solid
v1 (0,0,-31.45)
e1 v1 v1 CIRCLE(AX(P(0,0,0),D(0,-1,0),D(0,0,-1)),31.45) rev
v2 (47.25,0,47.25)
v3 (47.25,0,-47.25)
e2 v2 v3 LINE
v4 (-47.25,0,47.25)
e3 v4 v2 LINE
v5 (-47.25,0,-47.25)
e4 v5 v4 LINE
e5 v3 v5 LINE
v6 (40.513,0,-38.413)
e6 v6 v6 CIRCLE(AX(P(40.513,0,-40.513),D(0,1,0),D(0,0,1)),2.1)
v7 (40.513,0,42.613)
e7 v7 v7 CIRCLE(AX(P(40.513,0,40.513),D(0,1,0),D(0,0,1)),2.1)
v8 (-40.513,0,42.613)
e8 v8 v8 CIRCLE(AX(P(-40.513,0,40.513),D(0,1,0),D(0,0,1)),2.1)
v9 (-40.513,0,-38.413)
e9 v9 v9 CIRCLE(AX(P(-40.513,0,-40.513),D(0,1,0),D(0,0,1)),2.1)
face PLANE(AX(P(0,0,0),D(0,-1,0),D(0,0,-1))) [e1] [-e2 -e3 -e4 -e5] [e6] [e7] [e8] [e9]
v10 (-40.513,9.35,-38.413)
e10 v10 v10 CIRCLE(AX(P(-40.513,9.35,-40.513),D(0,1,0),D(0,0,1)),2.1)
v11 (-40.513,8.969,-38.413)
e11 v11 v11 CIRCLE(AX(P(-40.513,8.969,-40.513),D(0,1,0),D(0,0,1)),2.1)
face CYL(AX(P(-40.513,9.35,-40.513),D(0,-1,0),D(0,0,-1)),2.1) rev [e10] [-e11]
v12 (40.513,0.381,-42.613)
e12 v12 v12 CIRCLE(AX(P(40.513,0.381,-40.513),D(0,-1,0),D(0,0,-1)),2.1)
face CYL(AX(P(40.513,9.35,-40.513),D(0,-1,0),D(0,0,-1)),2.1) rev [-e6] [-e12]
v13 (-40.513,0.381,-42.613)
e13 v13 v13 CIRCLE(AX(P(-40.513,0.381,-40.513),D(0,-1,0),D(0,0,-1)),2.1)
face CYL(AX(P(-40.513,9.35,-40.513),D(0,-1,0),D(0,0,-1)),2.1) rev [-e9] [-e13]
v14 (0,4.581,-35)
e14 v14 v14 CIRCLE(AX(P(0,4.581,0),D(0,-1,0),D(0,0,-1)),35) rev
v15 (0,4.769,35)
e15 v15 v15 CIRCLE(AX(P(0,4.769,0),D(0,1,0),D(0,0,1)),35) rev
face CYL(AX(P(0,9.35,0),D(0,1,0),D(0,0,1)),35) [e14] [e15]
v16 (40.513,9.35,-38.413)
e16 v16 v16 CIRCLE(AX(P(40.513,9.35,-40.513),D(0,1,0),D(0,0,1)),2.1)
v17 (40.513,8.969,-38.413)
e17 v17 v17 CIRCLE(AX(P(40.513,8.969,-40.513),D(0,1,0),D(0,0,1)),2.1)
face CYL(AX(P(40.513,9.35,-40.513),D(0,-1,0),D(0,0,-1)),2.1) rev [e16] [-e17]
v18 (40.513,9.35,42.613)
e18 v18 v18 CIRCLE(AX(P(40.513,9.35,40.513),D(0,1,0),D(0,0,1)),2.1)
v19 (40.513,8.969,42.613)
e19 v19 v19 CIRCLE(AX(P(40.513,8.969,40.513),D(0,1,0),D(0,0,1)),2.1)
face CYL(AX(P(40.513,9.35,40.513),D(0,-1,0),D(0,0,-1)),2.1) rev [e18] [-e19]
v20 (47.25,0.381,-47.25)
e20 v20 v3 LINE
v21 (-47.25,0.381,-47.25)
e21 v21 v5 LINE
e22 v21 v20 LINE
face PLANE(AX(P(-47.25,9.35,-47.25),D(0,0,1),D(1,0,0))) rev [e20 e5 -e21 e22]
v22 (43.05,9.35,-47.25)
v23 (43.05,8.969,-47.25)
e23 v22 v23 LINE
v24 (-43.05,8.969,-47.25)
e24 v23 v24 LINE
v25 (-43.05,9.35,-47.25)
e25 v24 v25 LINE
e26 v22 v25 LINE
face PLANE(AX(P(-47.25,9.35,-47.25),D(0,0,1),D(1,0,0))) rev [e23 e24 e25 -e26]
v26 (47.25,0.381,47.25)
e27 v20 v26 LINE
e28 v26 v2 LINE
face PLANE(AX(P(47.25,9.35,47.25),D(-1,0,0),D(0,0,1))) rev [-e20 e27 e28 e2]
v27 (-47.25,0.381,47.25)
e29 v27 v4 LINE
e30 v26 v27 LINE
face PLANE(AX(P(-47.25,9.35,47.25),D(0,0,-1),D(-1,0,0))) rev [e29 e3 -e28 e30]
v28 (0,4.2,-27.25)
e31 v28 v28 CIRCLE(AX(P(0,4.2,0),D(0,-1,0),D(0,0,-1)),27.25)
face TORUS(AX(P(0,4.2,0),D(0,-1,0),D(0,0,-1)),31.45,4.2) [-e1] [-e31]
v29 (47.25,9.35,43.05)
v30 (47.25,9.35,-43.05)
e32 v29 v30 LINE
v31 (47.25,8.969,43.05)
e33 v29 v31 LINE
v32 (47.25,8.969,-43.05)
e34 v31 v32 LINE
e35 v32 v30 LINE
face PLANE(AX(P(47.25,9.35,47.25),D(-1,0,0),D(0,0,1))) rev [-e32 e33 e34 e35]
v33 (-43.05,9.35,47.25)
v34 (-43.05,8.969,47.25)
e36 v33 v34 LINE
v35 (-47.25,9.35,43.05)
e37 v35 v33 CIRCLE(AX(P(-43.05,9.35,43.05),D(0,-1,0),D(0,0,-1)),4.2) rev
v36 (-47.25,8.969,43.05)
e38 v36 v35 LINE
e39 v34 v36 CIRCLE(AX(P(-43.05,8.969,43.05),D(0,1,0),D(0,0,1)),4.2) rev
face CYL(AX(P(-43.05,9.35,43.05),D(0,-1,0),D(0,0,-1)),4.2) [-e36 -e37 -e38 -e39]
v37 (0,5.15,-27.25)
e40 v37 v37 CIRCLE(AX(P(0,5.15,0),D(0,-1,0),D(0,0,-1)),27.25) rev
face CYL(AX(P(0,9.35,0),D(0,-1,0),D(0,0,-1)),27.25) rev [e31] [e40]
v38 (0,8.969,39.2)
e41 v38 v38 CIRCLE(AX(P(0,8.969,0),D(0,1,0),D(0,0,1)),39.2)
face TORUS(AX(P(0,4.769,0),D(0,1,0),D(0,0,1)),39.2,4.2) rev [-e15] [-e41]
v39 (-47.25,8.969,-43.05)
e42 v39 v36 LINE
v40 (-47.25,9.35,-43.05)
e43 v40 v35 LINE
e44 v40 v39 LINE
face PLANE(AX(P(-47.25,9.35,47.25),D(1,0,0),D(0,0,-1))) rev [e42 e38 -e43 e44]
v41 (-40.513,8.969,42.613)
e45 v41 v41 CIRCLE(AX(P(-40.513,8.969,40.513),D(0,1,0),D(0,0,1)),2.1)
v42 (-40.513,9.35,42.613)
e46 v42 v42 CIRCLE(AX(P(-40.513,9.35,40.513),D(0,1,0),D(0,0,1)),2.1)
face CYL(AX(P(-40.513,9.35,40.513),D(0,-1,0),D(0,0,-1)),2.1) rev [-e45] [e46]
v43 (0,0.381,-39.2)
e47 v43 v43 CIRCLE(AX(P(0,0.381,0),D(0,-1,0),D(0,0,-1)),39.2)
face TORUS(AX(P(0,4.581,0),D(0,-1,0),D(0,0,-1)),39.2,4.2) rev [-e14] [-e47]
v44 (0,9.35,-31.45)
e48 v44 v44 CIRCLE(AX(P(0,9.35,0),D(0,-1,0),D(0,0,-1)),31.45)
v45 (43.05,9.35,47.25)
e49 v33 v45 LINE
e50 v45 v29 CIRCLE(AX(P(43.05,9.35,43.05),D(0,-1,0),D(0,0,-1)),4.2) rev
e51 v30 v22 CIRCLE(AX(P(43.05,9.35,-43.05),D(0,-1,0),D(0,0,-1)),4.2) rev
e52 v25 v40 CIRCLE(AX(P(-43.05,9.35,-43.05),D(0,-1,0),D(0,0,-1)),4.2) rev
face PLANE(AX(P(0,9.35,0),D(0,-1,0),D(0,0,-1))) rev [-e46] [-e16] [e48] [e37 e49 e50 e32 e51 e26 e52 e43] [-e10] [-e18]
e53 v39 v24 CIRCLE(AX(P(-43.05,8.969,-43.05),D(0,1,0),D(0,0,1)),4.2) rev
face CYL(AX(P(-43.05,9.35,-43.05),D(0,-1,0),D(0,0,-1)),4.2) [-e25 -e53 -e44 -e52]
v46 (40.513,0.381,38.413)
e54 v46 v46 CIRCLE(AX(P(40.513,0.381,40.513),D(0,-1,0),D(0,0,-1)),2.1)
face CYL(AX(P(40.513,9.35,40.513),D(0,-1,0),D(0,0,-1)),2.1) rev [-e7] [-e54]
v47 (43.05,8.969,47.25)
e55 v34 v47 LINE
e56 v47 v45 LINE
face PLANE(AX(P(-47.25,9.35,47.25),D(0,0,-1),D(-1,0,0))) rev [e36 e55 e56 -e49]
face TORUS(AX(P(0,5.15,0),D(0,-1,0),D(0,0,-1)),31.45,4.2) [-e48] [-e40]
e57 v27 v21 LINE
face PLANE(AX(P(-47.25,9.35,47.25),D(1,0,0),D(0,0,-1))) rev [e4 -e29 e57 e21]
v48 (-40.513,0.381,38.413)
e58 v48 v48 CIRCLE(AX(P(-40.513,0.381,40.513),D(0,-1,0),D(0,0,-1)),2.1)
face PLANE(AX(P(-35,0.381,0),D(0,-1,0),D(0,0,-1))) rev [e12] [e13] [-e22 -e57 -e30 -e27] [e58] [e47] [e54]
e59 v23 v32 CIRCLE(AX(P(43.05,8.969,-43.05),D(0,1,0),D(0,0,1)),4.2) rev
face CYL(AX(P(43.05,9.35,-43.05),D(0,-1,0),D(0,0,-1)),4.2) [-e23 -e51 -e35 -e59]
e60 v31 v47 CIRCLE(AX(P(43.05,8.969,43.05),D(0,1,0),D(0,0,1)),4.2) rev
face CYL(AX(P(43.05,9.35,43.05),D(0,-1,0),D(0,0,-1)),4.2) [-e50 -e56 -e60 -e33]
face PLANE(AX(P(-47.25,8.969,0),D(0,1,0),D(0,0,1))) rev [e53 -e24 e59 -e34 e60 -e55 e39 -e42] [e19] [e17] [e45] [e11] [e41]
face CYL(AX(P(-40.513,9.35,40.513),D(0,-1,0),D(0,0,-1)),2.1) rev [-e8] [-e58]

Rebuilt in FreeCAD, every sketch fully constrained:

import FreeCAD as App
import Part
import Sketcher
from FreeCAD import Vector
Q = App.Units.Quantity


def edges_at(feature, points):
    """Names of the edges that pass closest to the given points."""
    edges = feature.Shape.Edges
    near = lambda p: min(range(len(edges)), key=lambda i: edges[i].distToShape(Part.Vertex(*p))[0])
    return sorted({f"Edge{near(p) + 1}" for p in points})

doc = App.newDocument("Part")
params = doc.addObject("Spreadsheet::Sheet", "Params")
for row, (alias, value) in enumerate([
    ("sketch1_diameter", "4.2 mm"),
    ("sketch1_diameter2", "54.5 mm"),
    ("sketch1_width", "94.5 mm"),
    ("pad1_length", "9.35 mm"),
    ("groove_angle", "360 deg"),
    ("fillet_radius", "4.2 mm"),
], start=1):
    params.set(f"A{row}", alias)
    params.set(f"B{row}", "=" + value)
    params.setAlias(f"B{row}", alias)

body = doc.addObject("PartDesign::Body", "Body")

sketch1 = body.newObject("Sketcher::SketchObject", "Sketch")
sketch1.AttachmentSupport = (doc.getObject("XZ_Plane"), [""])
sketch1.MapMode = "FlatFace"
sketch1.addGeometry([
    Part.LineSegment(Vector(-47.25, -47.25, 0), Vector(-47.25, 47.25, 0)),
    Part.LineSegment(Vector(-47.25, 47.25, 0), Vector(47.25, 47.25, 0)),
    Part.LineSegment(Vector(47.25, 47.25, 0), Vector(47.25, -47.25, 0)),
    Part.LineSegment(Vector(47.25, -47.25, 0), Vector(-47.25, -47.25, 0)),
    Part.Circle(Vector(-40.513, 40.513, 0), Vector(0, 0, 1), 2.1),
    Part.Circle(Vector(40.513, 40.513, 0), Vector(0, 0, 1), 2.1),
    Part.Circle(Vector(-40.513, -40.513, 0), Vector(0, 0, 1), 2.1),
    Part.Circle(Vector(0, 0, 0), Vector(0, 0, 1), 27.25),
    Part.Circle(Vector(40.513, -40.513, 0), Vector(0, 0, 1), 2.1),
], False)
sketch1.addConstraint([
    Sketcher.Constraint("Coincident", 0, 2, 1, 1),
    Sketcher.Constraint("Coincident", 1, 2, 2, 1),
    Sketcher.Constraint("Coincident", 2, 2, 3, 1),
    Sketcher.Constraint("Coincident", 3, 2, 0, 1),
    Sketcher.Constraint("Vertical", 0),
    Sketcher.Constraint("Horizontal", 1),
    Sketcher.Constraint("Vertical", 2),
    Sketcher.Constraint("Horizontal", 3),
    Sketcher.Constraint("Coincident", 7, 3, -1, 1),
    Sketcher.Constraint("Equal", 4, 5),
    Sketcher.Constraint("Equal", 5, 6),
    Sketcher.Constraint("Equal", 6, 8),
    Sketcher.Constraint("Symmetric", 5, 3, 6, 3, -1, 1),
    Sketcher.Constraint("Symmetric", 4, 3, 8, 3, -1, 1),
    Sketcher.Constraint("Symmetric", 0, 2, 2, 2, -1, 1),
    Sketcher.Constraint("Symmetric", 4, 3, 5, 3, -2),
    Sketcher.Constraint("Equal", 3, 0),
    Sketcher.Constraint("Diameter", 4, Q("4.2 mm")),
    Sketcher.Constraint("Diameter", 7, Q("54.5 mm")),
    Sketcher.Constraint("DistanceX", 1, 1, 1, 2, Q("94.5 mm")),
    Sketcher.Constraint("DistanceX", 4, 3, -1, 1, Q("40.513 mm")),
    Sketcher.Constraint("DistanceY", -1, 1, 4, 3, Q("40.513 mm")),
])
sketch1.setExpression("Constraints[17]", "Params.sketch1_diameter")
sketch1.setExpression("Constraints[18]", "Params.sketch1_diameter2")
sketch1.setExpression("Constraints[19]", "Params.sketch1_width")
pad1 = body.newObject("PartDesign::Pad", "Pad")
pad1.Profile = sketch1
pad1.setExpression("Length", "Params.pad1_length")
pad1.Reversed = True

sketch2 = body.newObject("Sketcher::SketchObject", "Sketch001")
sketch2.AttachmentSupport = (doc.getObject("XY_Plane"), [""])
sketch2.MapMode = "FlatFace"
sketch2.addGeometry([
    Part.LineSegment(Vector(-35, 8.969, 0), Vector(-68.714161, 8.969, 0)),
    Part.LineSegment(Vector(-68.714161, 8.969, 0), Vector(-68.714161, 0.381, 0)),
    Part.LineSegment(Vector(-68.714161, 0.381, 0), Vector(-35, 0.381, 0)),
    Part.LineSegment(Vector(-35, 0.381, 0), Vector(-35, 8.969, 0)),
], False)
sketch2.addConstraint([
    Sketcher.Constraint("Coincident", 0, 2, 1, 1),
    Sketcher.Constraint("Coincident", 1, 2, 2, 1),
    Sketcher.Constraint("Coincident", 2, 2, 3, 1),
    Sketcher.Constraint("Coincident", 3, 2, 0, 1),
    Sketcher.Constraint("Horizontal", 0),
    Sketcher.Constraint("Vertical", 1),
    Sketcher.Constraint("Horizontal", 2),
    Sketcher.Constraint("Vertical", 3),
    Sketcher.Constraint("DistanceX", 2, 2, -1, 1, Q("35 mm")),
    Sketcher.Constraint("DistanceY", 1, 2, 1, 1, Q("8.588 mm")),
    Sketcher.Constraint("DistanceY", -1, 1, 0, 2, Q("8.969 mm")),
    Sketcher.Constraint("DistanceX", 0, 2, 0, 1, Q("33.714161 mm")),
])
groove = body.newObject("PartDesign::Groove", "Groove")
groove.Profile = sketch2
groove.ReferenceAxis = (sketch2, ["V_Axis"])
groove.setExpression("Angle", "Params.groove_angle")
doc.recompute()

fillet = body.newObject("PartDesign::Fillet", "Fillet")
fillet.Base = (groove, edges_at(groove, [
    (0, 0, -27.25),
    (0, 9.35, -27.25),
    (0, 0.381, -35),
    (0, 8.969, -35),
    (47.25, 9.159, 47.25),
    (-47.25, 9.159, 47.25),
    (-47.25, 9.159, -47.25),
    (47.25, 9.159, -47.25),
]))
fillet.setExpression("Radius", "Params.fillet_radius")

doc.recompute()
